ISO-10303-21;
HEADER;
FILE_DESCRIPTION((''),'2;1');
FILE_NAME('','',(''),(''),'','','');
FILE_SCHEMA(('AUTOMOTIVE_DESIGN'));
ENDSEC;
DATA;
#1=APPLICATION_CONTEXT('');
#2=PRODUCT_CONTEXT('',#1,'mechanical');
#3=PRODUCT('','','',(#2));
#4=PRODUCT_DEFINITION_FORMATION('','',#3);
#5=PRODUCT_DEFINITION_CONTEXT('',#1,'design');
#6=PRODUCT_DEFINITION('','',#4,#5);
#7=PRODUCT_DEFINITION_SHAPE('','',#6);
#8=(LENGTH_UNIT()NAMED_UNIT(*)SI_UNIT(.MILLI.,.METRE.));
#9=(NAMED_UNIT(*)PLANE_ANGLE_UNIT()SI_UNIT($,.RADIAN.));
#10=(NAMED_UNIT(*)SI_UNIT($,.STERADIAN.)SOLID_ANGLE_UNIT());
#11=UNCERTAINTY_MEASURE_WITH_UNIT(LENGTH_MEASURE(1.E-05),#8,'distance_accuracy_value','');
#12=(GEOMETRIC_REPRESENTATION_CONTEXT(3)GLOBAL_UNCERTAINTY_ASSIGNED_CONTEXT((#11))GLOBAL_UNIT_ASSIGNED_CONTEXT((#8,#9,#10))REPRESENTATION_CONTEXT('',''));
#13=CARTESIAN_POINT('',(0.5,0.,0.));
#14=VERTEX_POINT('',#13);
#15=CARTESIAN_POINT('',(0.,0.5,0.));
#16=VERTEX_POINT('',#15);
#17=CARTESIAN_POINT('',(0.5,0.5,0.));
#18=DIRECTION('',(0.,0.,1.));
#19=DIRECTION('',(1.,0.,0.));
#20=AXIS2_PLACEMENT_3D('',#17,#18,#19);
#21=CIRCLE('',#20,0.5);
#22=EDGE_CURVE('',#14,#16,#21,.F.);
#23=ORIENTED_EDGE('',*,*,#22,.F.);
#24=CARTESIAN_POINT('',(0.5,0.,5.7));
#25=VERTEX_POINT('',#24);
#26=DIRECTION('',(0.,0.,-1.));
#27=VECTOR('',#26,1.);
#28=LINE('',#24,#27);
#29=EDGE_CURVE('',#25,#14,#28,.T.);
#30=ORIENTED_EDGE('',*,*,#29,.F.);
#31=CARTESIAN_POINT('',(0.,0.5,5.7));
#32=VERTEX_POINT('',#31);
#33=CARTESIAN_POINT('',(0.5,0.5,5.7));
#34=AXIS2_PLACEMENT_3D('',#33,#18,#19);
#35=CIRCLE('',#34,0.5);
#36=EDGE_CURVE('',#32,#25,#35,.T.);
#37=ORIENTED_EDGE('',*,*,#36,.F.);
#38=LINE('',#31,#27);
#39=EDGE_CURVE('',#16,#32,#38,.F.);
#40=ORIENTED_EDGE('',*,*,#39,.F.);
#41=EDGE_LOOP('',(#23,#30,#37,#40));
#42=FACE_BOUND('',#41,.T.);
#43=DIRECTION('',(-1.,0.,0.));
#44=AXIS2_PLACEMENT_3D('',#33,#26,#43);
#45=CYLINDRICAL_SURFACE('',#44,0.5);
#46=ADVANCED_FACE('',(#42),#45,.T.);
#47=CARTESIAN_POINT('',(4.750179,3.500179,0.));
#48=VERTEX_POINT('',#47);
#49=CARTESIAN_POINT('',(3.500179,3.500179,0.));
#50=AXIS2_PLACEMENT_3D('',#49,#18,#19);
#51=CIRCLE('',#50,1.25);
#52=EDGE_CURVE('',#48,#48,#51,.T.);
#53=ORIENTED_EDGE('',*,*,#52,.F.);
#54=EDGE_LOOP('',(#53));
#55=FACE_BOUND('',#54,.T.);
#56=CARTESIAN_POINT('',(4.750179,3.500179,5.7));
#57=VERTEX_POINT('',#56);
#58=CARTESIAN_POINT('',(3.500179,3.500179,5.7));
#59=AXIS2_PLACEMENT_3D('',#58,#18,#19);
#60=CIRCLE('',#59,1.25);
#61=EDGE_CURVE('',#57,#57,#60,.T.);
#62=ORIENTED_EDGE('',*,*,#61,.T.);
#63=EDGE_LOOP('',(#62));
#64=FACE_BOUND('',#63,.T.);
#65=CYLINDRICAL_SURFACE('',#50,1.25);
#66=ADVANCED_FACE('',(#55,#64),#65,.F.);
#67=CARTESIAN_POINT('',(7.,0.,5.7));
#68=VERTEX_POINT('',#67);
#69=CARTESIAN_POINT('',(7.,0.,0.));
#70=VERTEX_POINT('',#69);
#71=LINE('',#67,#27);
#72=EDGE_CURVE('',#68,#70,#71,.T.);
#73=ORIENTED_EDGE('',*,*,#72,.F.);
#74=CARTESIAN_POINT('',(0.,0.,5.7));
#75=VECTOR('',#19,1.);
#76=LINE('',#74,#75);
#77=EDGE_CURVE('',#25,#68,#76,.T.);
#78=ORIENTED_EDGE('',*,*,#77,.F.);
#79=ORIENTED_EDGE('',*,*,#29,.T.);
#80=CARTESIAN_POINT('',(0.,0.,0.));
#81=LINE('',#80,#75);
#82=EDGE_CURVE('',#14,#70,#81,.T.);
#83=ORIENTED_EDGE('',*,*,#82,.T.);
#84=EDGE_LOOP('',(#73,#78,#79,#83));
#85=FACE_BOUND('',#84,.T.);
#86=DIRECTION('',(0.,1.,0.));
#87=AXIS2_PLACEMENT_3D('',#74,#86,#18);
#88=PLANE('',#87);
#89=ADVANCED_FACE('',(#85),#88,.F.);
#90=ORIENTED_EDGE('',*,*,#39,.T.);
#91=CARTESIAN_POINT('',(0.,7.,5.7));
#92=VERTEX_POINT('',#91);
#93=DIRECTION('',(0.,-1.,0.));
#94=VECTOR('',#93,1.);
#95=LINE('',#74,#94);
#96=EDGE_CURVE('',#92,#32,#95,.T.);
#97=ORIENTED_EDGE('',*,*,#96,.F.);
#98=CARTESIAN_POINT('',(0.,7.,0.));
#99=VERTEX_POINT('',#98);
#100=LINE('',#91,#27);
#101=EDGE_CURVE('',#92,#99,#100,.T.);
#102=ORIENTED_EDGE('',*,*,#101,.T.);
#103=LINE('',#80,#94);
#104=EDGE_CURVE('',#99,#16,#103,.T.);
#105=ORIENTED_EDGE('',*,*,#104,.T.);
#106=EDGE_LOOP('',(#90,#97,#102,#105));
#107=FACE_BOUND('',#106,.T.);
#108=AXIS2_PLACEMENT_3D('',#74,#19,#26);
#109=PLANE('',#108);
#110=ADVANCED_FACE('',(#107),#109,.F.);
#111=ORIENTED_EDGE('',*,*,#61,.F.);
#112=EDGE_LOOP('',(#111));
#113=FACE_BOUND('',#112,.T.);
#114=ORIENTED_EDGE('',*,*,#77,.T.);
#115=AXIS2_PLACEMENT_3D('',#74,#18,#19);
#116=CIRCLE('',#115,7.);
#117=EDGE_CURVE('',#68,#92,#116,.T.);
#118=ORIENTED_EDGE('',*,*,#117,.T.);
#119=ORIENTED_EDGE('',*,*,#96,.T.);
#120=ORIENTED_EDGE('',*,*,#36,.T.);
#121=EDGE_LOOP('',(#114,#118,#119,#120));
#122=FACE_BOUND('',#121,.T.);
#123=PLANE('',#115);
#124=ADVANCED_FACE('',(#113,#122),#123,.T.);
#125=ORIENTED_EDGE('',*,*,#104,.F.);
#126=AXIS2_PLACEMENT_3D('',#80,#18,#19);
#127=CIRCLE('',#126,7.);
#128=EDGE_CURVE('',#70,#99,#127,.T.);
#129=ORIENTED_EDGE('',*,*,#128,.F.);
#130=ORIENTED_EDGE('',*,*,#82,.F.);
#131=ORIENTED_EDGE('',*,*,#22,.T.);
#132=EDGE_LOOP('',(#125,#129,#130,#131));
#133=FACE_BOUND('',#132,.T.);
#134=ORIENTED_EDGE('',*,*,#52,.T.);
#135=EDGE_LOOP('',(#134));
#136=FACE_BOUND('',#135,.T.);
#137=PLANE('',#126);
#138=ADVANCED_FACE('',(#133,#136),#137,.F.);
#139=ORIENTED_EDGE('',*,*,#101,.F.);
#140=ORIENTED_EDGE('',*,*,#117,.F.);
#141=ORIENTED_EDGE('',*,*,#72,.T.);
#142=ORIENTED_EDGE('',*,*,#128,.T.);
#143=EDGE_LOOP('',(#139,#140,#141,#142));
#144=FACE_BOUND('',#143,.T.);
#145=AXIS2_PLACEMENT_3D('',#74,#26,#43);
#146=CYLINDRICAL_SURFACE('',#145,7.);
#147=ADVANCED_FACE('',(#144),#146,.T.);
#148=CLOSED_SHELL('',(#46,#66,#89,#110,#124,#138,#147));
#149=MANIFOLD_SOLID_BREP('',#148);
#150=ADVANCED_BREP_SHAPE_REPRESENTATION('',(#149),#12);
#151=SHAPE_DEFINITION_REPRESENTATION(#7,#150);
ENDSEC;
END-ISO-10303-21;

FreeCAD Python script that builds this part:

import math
import FreeCAD as App
import Part
import Sketcher


def edges_at(feature, points):
    """Names of the edges that pass closest to the given points."""
    edges = feature.Shape.Edges
    near = lambda p: min(range(len(edges)), key=lambda i: edges[i].distToShape(Part.Vertex(*p))[0])
    return sorted({f"Edge{near(p) + 1}" for p in points})

doc = App.newDocument("Part")
params = doc.addObject("Spreadsheet::Sheet", "Params")
for row, (alias, value) in enumerate([
    ("sketch1_radius", "7 mm"),
    ("pad1_length", "5.7 mm"),
    ("sketch2_diameter", "2.5 mm"),
    ("fillet_radius", "0.5 mm"),
], start=1):
    params.set(f"A{row}", alias)
    params.set(f"B{row}", "=" + value)
    params.setAlias(f"B{row}", alias)

body = doc.addObject("PartDesign::Body", "Body")

# Sketch on XY plane
sketch1 = doc.addObject("Sketcher::SketchObject", "Sketch")
body.addObject(sketch1)
sketch1.AttachmentSupport = (doc.XY_Plane, [""])
sketch1.MapMode = "FlatFace"
sketch1.addGeometry([
    Part.LineSegment(App.Vector(0, 0, 0), App.Vector(7, 0, 0)),
    Part.ArcOfCircle(Part.Circle(App.Vector(0, 0, 0), App.Vector(0, 0, 1), 7), math.radians(0), math.radians(90)),
    Part.LineSegment(App.Vector(0, 7, 0), App.Vector(0, 0, 0)),
], False)
sketch1.addConstraint([
    Sketcher.Constraint("Coincident", 0, 2, 1, 1),
    Sketcher.Constraint("Coincident", 1, 2, 2, 1),
    Sketcher.Constraint("Coincident", 2, 2, 0, 1),
    Sketcher.Constraint("Horizontal", 0),
    Sketcher.Constraint("Vertical", 2),
    Sketcher.Constraint("Coincident", 1, 3, -1, 1),
    Sketcher.Constraint("Coincident", 2, 2, -1, 1),
    Sketcher.Constraint("Radius", 1, 7.0),
])
sketch1.setExpression("Constraints[7]", "Params.sketch1_radius")
pad1 = doc.addObject("PartDesign::Pad", "Pad")
body.addObject(pad1)
pad1.Profile = sketch1
pad1.setExpression("Length", "Params.pad1_length")

# Sketch on XY plane
sketch2 = doc.addObject("Sketcher::SketchObject", "Sketch001")
body.addObject(sketch2)
sketch2.AttachmentSupport = (doc.XY_Plane, [""])
sketch2.MapMode = "FlatFace"
sketch2.AttachmentOffset = App.Placement(App.Vector(0, 0, 5.7), App.Rotation())
sketch2.addGeometry(Part.Circle(App.Vector(3.500179, 3.500179, 0), App.Vector(0, 0, 1), 1.25), False)
sketch2.addConstraint([
    Sketcher.Constraint("Diameter", 0, 2.5),
    Sketcher.Constraint("DistanceX", -1, 1, 0, 3, 3.500179),
    Sketcher.Constraint("DistanceY", -1, 1, 0, 3, 3.500179),
])
sketch2.setExpression("Constraints[0]", "Params.sketch2_diameter")
pocket1 = doc.addObject("PartDesign::Pocket", "Pocket")
body.addObject(pocket1)
pocket1.Profile = sketch2
pocket1.Type = "ThroughAll"
doc.recompute()

fillet = doc.addObject("PartDesign::Fillet", "Fillet")
body.addObject(fillet)
fillet.Base = (pocket1, edges_at(pocket1, [(0, 0, 2.85)]))
fillet.setExpression("Radius", "Params.fillet_radius")

doc.recompute()
